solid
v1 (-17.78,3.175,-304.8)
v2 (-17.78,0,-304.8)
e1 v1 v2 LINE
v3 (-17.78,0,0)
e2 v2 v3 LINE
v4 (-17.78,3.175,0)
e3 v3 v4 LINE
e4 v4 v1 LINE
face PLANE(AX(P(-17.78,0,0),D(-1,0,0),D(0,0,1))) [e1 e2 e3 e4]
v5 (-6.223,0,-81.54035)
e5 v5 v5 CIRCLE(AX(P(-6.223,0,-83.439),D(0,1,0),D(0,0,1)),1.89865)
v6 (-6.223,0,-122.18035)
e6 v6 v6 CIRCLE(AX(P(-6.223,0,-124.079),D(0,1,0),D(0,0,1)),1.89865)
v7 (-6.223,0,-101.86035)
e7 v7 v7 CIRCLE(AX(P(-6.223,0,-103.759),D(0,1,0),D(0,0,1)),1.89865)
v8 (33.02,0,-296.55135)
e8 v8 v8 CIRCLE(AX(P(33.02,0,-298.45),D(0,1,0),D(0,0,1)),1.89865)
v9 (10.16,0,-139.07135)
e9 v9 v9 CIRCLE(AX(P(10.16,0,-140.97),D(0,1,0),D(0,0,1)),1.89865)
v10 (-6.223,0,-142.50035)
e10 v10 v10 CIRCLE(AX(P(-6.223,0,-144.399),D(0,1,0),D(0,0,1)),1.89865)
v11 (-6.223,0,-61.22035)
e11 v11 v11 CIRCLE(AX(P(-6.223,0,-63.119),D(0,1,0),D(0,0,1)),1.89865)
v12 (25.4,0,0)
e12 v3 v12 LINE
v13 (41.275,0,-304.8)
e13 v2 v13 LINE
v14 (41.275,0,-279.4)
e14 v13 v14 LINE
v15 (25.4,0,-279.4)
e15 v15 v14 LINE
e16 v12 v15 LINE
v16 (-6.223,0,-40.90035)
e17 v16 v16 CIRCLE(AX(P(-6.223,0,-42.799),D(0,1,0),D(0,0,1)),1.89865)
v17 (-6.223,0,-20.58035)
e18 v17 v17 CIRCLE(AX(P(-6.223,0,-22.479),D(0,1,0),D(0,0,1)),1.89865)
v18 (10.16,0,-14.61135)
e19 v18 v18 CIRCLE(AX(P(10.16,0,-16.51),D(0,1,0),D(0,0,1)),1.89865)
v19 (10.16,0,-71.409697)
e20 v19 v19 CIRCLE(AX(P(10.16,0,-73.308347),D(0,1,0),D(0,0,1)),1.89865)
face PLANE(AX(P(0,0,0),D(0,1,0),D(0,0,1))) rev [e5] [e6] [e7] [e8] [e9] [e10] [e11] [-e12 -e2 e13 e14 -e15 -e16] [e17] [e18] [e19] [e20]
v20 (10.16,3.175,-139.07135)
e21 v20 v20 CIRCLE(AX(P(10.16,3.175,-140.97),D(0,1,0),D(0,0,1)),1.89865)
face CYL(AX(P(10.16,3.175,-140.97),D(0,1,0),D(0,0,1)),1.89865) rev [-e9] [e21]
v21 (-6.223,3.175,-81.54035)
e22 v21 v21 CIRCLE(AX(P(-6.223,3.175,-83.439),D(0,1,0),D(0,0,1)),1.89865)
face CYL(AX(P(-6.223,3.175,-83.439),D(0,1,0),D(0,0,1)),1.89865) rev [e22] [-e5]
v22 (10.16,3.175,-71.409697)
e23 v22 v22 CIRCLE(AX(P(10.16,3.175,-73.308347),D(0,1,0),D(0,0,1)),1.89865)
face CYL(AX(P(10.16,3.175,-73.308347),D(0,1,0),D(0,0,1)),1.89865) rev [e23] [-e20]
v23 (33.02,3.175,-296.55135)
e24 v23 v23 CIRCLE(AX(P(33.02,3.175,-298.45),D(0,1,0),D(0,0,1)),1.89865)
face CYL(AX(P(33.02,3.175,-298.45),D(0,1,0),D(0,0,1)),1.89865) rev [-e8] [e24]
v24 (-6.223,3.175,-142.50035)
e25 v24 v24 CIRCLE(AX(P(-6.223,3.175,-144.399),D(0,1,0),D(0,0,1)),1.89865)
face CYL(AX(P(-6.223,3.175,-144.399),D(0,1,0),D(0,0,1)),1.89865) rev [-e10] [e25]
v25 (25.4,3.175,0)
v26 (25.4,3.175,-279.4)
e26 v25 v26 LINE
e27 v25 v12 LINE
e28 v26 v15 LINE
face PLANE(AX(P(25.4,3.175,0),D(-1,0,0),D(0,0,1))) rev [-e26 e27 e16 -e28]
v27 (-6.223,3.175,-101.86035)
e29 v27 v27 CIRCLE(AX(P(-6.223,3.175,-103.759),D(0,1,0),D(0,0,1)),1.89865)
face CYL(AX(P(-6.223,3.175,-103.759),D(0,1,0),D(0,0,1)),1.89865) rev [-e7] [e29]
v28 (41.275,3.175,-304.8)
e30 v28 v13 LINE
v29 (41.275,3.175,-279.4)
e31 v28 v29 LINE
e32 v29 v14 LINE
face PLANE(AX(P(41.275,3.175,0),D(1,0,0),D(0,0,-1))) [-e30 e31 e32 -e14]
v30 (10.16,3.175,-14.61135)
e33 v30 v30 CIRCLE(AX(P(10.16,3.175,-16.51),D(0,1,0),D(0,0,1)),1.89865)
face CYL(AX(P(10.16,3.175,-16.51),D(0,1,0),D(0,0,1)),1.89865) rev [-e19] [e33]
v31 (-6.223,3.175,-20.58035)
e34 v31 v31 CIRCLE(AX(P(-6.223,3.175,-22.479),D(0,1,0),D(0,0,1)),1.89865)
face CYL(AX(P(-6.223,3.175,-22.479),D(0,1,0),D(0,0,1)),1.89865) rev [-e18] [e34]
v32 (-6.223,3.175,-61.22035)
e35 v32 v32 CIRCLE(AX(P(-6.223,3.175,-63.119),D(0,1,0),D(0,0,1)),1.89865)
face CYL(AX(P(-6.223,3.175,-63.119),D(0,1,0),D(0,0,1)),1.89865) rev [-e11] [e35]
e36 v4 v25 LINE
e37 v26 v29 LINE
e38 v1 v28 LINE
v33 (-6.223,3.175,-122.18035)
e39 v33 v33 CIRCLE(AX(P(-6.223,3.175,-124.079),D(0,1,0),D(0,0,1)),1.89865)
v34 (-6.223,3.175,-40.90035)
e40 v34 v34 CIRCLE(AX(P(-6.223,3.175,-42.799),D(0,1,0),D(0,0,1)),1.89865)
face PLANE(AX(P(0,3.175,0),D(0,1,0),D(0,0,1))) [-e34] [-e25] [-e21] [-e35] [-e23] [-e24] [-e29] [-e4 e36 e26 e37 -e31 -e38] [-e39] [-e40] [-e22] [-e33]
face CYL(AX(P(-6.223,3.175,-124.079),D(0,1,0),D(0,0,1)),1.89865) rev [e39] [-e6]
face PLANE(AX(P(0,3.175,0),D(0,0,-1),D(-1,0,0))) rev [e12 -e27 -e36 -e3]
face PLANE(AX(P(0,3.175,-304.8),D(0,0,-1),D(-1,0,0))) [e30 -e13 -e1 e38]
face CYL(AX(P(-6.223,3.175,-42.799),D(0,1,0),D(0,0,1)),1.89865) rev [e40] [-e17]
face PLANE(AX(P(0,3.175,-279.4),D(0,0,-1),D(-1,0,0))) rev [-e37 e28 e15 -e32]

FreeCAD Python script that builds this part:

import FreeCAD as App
import Part
import Sketcher
from FreeCAD import Vector
Q = App.Units.Quantity

doc = App.newDocument("Part")
body = doc.addObject("PartDesign::Body", "Body")

# Sketch on XZ plane
sketch1 = body.newObject("Sketcher::SketchObject", "Sketch")
sketch1.AttachmentSupport = (doc.getObject("XZ_Plane"), [""])
sketch1.MapMode = "FlatFace"
sketch1.addGeometry([
    Part.LineSegment(Vector(0, -305, 0), Vector(0, 0, 0)),  # 0
    Part.LineSegment(Vector(0, 0, 0), Vector(25, 0, 0)),  # 1
    Part.LineSegment(Vector(25, 0, 0), Vector(25, -279, 0)),  # 2
    Part.LineSegment(Vector(25, -279, 0), Vector(41, -279, 0)),  # 3
    Part.LineSegment(Vector(41, -279, 0), Vector(41, -305, 0)),  # 4
    Part.LineSegment(Vector(41, -305, 0), Vector(0, -305, 0)),  # 5
], False)
sketch1.addConstraint([
    Sketcher.Constraint("Coincident", 0, 2, 1, 1),
    Sketcher.Constraint("Coincident", 1, 2, 2, 1),
    Sketcher.Constraint("Coincident", 2, 2, 3, 1),
    Sketcher.Constraint("Coincident", 3, 2, 4, 1),
    Sketcher.Constraint("Coincident", 4, 2, 5, 1),
    Sketcher.Constraint("Coincident", 5, 2, 0, 1),
    Sketcher.Constraint("Vertical", 0),
    Sketcher.Constraint("Horizontal", 1),
    Sketcher.Constraint("Vertical", 2),
    Sketcher.Constraint("Horizontal", 3),
    Sketcher.Constraint("Vertical", 4),
    Sketcher.Constraint("Horizontal", 5),
    Sketcher.Constraint("Coincident", 0, 2, -1, 1),
    Sketcher.Constraint("Equal", 1, 4),
    Sketcher.Constraint("DistanceX", 1, 1, 1, 2, Q("1 in")),
    Sketcher.Constraint("DistanceY", 0, 1, 0, 2, Q("12 in")),
    Sketcher.Constraint("DistanceX", 3, 1, 3, 2, Q("0.625 in")),
])
pad1 = body.newObject("PartDesign::Pad", "Pad")
pad1.Profile = sketch1
pad1.Length = Q("0.125 in")
pad1.Reversed = True

# Sketch on XZ plane
sketch2 = body.newObject("Sketcher::SketchObject", "Sketch001")
sketch2.AttachmentSupport = (doc.getObject("XZ_Plane"), [""])
sketch2.MapMode = "FlatFace"
sketch2.AttachmentOffset = App.Placement(Vector(0, 0, -0.125 * 25.4), App.Rotation())
sketch2.addGeometry([
    Part.Circle(Vector(10.2, -16.5, 0), Vector(0, 0, 1), 1.9),
    Part.Circle(Vector(10.2, -73.3, 0), Vector(0, 0, 1), 1.9),
    Part.Circle(Vector(10.2, -141, 0), Vector(0, 0, 1), 1.9),
    Part.Circle(Vector(33, -298.4, 0), Vector(0, 0, 1), 1.9),
], False)
sketch2.addConstraint([
    Sketcher.Constraint("Equal", 0, 1),
    Sketcher.Constraint("Equal", 1, 2),
    Sketcher.Constraint("Equal", 2, 3),
    Sketcher.Constraint("Vertical", 0, 3, 1, 3),
    Sketcher.Constraint("Vertical", 1, 3, 2, 3),
    Sketcher.Constraint("Diameter", 0, Q("0.1495 in")),
    Sketcher.Constraint("DistanceX", -1, 1, 0, 3, Q("0.4 in")),
    Sketcher.Constraint("DistanceX", -1, 1, 3, 3, Q("1.3 in")),
    Sketcher.Constraint("DistanceY", 2, 3, 0, 3, Q("4.9 in")),
    Sketcher.Constraint("DistanceY", 3, 3, 2, 3, Q("6.2 in")),
    Sketcher.Constraint("DistanceY", 0, 3, -1, 1, Q("0.65 in")),
    Sketcher.Constraint("DistanceY", 1, 3, -1, 1, Q("73.308347 mm")),
])
doc.recompute()
hole = body.newObject("PartDesign::Hole", "Hole")
hole.Profile = sketch2
hole.ThreadType = "None"
hole.Diameter = Q("0.1495 in")
hole.DepthType = "ThroughAll"
hole.Reversed = True

# Sketch on YZ plane
sketch3 = body.newObject("Sketcher::SketchObject", "Sketch002")
sketch3.AttachmentSupport = (doc.getObject("YZ_Plane"), [""])
sketch3.MapMode = "FlatFace"
sketch3.addGeometry([
    Part.LineSegment(Vector(3.2, -304.8, 0), Vector(0, -304.8, 0)),
    Part.LineSegment(Vector(0, -304.8, 0), Vector(0, 0, 0)),
    Part.LineSegment(Vector(0, 0, 0), Vector(3.2, 0, 0)),
    Part.LineSegment(Vector(3.2, 0, 0), Vector(3.2, -304.8, 0)),
], False)
sketch3.addConstraint([
    Sketcher.Constraint("Coincident", 0, 2, 1, 1),
    Sketcher.Constraint("Coincident", 1, 2, 2, 1),
    Sketcher.Constraint("Coincident", 2, 2, 3, 1),
    Sketcher.Constraint("Coincident", 3, 2, 0, 1),
    Sketcher.Constraint("Horizontal", 0),
    Sketcher.Constraint("Vertical", 1),
    Sketcher.Constraint("Horizontal", 2),
    Sketcher.Constraint("Vertical", 3),
    Sketcher.Constraint("Coincident", 1, 2, -1, 1),
    Sketcher.Constraint("DistanceY", 1, 1, 1, 2, Q("12 in")),
    Sketcher.Constraint("DistanceX", 0, 2, 0, 1, Q("0.125 in")),
])
pad2 = body.newObject("PartDesign::Pad", "Pad001")
pad2.Profile = sketch3
pad2.Length = Q("0.7 in")
pad2.Reversed = True

# Sketch on XZ plane
sketch4 = body.newObject("Sketcher::SketchObject", "Sketch003")
sketch4.AttachmentSupport = (doc.getObject("XZ_Plane"), [""])
sketch4.MapMode = "FlatFace"
sketch4.AttachmentOffset = App.Placement(Vector(0, 0, -0.125 * 25.4), App.Rotation())
sketch4.addGeometry([
    Part.Circle(Vector(-6.22, -42.8, 0), Vector(0, 0, 1), 0.13),  # 0
    Part.Circle(Vector(-6.22, -22.48, 0), Vector(0, 0, 1), 0.13),  # 1
    Part.Circle(Vector(-6.22, -63.12, 0), Vector(0, 0, 1), 0.13),  # 2
    Part.Circle(Vector(-6.22, -83.44, 0), Vector(0, 0, 1), 0.13),  # 3
    Part.Circle(Vector(-6.22, -103.76, 0), Vector(0, 0, 1), 0.13),  # 4
    Part.Circle(Vector(-6.22, -124.08, 0), Vector(0, 0, 1), 0.13),  # 5
    Part.Circle(Vector(-6.22, -144.4, 0), Vector(0, 0, 1), 0.13),  # 6
], False)
sketch4.addConstraint([
    Sketcher.Constraint("Equal", 0, 1),
    Sketcher.Constraint("Equal", 1, 2),
    Sketcher.Constraint("Equal", 2, 3),
    Sketcher.Constraint("Equal", 3, 4),
    Sketcher.Constraint("Equal", 4, 5),
    Sketcher.Constraint("Equal", 5, 6),
    Sketcher.Constraint("Vertical", 0, 3, 1, 3),
    Sketcher.Constraint("Vertical", 1, 3, 2, 3),
    Sketcher.Constraint("Vertical", 2, 3, 3, 3),
    Sketcher.Constraint("Vertical", 3, 3, 4, 3),
    Sketcher.Constraint("Vertical", 4, 3, 5, 3),
    Sketcher.Constraint("Vertical", 5, 3, 6, 3),
    Sketcher.Constraint("Diameter", 0, Q("0.01 in")),
    Sketcher.Constraint("DistanceY", 5, 3, 1, 3, Q("4 in")),
    Sketcher.Constraint("DistanceY", 6, 3, 0, 3, Q("4 in")),
    Sketcher.Constraint("DistanceY", 0, 3, 1, 3, Q("0.8 in")),
    Sketcher.Constraint("DistanceY", 2, 3, 0, 3, Q("0.8 in")),
    Sketcher.Constraint("DistanceY", 3, 3, 2, 3, Q("0.8 in")),
    Sketcher.Constraint("DistanceY", 4, 3, 3, 3, Q("0.8 in")),
    Sketcher.Constraint("DistanceX", 0, 3, -1, 1, Q("0.245 in")),
    Sketcher.Constraint("DistanceY", 0, 3, -1, 1, Q("1.685 in")),
])
pocket1 = body.newObject("PartDesign::Pocket", "Pocket")
pocket1.Profile = sketch4
pocket1.Type = "ThroughAll"
pocket1.Reversed = True

# Sketch on XZ plane
sketch5 = body.newObject("Sketcher::SketchObject", "Sketch004")
sketch5.AttachmentSupport = (doc.getObject("XZ_Plane"), [""])
sketch5.MapMode = "FlatFace"
sketch5.AttachmentOffset = App.Placement(Vector(0, 0, -0.125 * 25.4), App.Rotation())
sketch5.addGeometry([
    Part.Circle(Vector(-6.2, -42.8, 0), Vector(0, 0, 1), 1.9),  # 0
    Part.Circle(Vector(-6.2, -63.1, 0), Vector(0, 0, 1), 1.9),  # 1
    Part.Circle(Vector(-6.2, -83.4, 0), Vector(0, 0, 1), 1.9),  # 2
    Part.Circle(Vector(-6.2, -103.8, 0), Vector(0, 0, 1), 1.9),  # 3
    Part.Circle(Vector(-6.2, -124.1, 0), Vector(0, 0, 1), 1.9),  # 4
    Part.Circle(Vector(-6.2, -144.4, 0), Vector(0, 0, 1), 1.9),  # 5
    Part.Circle(Vector(-6.2, -22.5, 0), Vector(0, 0, 1), 1.9),  # 6
], False)
sketch5.addConstraint([
    Sketcher.Constraint("Equal", 0, 1),
    Sketcher.Constraint("Equal", 1, 2),
    Sketcher.Constraint("Equal", 2, 3),
    Sketcher.Constraint("Equal", 3, 4),
    Sketcher.Constraint("Equal", 4, 5),
    Sketcher.Constraint("Equal", 5, 6),
    Sketcher.Constraint("Vertical", 0, 3, 1, 3),
    Sketcher.Constraint("Vertical", 1, 3, 2, 3),
    Sketcher.Constraint("Vertical", 2, 3, 3, 3),
    Sketcher.Constraint("Vertical", 3, 3, 4, 3),
    Sketcher.Constraint("Vertical", 4, 3, 5, 3),
    Sketcher.Constraint("Vertical", 5, 3, 6, 3),
    Sketcher.Constraint("DistanceY", 5, 3, 0, 3, Q("4 in")),
    Sketcher.Constraint("DistanceY", 4, 3, 6, 3, Q("4 in")),
    Sketcher.Constraint("Diameter", 0, Q("0.1495 in")),
    Sketcher.Constraint("DistanceY", 1, 3, 0, 3, Q("0.8 in")),
    Sketcher.Constraint("DistanceY", 2, 3, 1, 3, Q("0.8 in")),
    Sketcher.Constraint("DistanceY", 3, 3, 2, 3, Q("0.8 in")),
    Sketcher.Constraint("DistanceY", 4, 3, 3, 3, Q("0.8 in")),
    Sketcher.Constraint("DistanceX", 0, 3, -1, 1, Q("0.245 in")),
    Sketcher.Constraint("DistanceY", 0, 3, -1, 1, Q("1.685 in")),
])
doc.recompute()
hole2 = body.newObject("PartDesign::Hole", "Hole001")
hole2.Profile = sketch5
hole2.ThreadType = "None"
hole2.Diameter = Q("0.1495 in")
hole2.DepthType = "ThroughAll"
hole2.Reversed = True

doc.recompute()
